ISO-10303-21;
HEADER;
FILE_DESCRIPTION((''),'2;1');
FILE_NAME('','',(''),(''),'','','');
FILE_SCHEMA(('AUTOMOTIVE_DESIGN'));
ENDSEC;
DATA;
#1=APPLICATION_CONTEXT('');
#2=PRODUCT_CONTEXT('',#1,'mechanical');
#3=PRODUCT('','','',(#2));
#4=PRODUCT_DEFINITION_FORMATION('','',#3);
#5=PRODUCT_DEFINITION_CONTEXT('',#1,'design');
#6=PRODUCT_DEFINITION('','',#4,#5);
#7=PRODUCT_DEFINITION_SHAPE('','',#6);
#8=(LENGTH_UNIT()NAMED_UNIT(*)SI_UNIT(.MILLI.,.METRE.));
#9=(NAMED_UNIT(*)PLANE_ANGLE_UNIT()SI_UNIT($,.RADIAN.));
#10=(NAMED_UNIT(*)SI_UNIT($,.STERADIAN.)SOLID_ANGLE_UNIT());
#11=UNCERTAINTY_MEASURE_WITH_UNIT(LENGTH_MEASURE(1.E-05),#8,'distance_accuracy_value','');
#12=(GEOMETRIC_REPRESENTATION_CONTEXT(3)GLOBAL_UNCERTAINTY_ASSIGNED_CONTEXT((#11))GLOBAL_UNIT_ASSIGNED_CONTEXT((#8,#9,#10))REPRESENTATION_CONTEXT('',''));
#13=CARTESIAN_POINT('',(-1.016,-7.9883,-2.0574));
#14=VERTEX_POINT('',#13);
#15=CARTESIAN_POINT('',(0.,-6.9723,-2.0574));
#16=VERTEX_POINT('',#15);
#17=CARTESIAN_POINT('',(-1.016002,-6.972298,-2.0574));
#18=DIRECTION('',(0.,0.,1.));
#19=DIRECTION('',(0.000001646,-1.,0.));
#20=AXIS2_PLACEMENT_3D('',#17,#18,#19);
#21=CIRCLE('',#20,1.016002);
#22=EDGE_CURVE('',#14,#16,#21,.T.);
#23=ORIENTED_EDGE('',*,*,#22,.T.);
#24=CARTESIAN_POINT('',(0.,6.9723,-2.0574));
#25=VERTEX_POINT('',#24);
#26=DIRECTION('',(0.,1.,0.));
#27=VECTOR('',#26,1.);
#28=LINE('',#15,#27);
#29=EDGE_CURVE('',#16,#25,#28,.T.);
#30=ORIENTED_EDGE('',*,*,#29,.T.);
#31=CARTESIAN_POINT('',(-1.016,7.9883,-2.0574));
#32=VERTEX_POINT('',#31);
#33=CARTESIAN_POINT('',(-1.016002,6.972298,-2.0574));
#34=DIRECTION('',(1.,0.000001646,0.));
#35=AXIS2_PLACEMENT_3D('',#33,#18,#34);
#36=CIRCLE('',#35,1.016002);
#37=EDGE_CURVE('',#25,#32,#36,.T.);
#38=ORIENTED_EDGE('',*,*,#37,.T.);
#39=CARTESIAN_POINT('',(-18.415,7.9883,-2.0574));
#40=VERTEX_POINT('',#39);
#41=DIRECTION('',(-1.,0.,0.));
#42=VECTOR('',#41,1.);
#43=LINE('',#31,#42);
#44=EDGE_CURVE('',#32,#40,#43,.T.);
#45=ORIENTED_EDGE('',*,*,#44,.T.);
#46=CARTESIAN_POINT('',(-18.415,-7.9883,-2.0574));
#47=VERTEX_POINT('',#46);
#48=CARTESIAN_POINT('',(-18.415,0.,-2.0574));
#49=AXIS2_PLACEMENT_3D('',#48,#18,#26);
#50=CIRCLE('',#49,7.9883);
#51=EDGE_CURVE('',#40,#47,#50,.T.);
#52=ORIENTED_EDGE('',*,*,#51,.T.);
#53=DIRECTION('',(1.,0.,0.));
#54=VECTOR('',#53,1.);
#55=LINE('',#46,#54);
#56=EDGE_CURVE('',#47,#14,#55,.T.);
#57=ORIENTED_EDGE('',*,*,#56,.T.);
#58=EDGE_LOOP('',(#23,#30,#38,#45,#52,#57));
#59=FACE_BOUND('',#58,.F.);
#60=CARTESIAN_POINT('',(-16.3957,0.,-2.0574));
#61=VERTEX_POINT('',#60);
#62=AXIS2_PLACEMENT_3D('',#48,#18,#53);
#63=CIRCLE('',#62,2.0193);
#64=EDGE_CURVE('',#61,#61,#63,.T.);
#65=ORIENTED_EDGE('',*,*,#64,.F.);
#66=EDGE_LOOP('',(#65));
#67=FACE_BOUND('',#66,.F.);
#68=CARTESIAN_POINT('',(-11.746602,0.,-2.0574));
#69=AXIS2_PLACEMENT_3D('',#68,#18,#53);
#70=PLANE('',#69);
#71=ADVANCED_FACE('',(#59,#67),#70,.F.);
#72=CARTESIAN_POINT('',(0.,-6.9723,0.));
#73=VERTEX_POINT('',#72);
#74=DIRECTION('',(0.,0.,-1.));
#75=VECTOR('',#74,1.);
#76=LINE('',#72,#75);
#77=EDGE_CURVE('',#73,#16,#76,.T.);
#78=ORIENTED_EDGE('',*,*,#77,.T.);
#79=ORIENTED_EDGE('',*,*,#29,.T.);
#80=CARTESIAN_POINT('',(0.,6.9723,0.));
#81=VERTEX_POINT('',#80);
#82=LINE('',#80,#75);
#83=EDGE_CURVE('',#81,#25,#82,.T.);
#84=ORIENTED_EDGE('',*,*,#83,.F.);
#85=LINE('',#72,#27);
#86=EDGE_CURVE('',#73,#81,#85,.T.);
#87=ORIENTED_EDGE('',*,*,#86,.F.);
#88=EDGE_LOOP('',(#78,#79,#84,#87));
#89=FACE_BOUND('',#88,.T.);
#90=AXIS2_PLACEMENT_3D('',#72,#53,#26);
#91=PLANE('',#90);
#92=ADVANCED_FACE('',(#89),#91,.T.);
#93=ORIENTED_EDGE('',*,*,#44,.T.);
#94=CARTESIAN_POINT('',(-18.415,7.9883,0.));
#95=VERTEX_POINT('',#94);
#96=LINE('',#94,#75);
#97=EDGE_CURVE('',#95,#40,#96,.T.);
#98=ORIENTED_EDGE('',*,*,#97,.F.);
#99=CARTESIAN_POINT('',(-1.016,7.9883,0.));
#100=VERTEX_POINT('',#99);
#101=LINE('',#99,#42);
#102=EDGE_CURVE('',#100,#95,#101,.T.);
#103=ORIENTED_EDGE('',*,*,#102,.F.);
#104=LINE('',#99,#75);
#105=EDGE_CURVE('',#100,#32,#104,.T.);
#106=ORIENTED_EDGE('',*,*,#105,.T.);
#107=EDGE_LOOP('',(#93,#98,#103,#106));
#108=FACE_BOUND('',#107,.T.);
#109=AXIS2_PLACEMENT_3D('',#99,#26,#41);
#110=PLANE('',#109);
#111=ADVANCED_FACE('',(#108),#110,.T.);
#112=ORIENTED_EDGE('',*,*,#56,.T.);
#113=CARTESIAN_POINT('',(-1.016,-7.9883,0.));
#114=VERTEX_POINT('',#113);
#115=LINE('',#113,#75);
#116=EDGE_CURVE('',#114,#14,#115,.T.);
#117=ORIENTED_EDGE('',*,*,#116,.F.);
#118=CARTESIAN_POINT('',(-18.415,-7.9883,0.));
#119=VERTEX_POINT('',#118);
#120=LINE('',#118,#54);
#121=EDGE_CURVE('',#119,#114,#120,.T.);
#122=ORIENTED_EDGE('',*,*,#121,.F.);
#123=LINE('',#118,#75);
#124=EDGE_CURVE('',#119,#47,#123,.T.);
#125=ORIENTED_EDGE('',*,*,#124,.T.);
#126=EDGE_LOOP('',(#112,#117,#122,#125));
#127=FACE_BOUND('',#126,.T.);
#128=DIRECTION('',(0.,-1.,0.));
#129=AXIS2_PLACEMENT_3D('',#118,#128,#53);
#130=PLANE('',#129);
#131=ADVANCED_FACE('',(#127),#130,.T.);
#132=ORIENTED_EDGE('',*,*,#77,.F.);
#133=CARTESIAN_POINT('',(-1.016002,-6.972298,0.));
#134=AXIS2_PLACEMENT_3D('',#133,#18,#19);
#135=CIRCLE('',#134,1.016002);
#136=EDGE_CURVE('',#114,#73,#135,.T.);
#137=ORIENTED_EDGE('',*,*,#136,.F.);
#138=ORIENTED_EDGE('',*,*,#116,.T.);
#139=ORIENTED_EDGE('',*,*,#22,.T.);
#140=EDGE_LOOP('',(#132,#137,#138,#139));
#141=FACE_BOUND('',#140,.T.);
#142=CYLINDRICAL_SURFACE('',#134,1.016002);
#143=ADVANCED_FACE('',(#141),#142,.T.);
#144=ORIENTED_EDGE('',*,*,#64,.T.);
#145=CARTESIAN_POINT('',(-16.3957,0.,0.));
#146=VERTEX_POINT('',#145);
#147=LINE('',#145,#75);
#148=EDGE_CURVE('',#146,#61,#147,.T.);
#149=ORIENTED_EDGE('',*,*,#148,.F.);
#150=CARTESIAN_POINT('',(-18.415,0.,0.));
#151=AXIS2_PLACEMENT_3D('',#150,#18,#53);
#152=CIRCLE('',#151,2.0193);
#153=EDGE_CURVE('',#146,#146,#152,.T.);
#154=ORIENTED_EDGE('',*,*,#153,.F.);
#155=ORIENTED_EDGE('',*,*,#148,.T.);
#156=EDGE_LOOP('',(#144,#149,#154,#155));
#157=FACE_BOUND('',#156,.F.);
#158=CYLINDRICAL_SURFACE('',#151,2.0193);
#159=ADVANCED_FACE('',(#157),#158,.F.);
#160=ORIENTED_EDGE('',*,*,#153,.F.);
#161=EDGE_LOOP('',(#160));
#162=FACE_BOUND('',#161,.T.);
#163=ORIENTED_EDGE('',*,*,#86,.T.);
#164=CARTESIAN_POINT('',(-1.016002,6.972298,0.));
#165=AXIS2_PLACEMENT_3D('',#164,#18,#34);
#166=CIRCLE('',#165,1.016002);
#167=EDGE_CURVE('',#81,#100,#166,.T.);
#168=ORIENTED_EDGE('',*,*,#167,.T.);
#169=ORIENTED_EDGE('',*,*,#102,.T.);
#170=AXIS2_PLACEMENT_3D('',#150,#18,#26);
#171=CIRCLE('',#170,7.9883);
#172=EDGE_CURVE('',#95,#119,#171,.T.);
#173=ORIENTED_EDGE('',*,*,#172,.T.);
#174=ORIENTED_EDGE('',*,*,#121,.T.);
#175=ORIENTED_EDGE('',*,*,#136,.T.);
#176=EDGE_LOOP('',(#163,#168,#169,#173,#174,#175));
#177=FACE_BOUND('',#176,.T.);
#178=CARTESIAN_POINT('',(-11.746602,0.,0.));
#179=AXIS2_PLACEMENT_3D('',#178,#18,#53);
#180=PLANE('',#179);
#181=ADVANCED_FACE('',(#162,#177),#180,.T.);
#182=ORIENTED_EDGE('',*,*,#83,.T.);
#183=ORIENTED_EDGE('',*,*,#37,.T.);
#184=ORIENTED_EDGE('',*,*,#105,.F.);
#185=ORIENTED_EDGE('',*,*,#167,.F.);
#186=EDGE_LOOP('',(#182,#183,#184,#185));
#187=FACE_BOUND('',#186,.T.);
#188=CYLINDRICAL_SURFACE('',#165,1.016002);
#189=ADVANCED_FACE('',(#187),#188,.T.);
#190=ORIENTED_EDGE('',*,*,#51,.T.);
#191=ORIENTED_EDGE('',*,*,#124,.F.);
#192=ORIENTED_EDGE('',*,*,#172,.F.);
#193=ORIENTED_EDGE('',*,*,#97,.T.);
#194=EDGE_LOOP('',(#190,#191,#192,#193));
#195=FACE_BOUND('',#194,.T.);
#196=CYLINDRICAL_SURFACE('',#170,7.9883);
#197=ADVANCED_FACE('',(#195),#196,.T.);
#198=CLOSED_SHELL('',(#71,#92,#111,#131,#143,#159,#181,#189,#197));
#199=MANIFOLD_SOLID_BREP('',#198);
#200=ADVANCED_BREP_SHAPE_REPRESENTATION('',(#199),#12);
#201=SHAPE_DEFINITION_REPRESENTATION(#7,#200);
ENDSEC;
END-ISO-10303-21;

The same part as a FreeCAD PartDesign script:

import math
import FreeCAD as App
import Part
import Sketcher
Q = App.Units.Quantity

doc = App.newDocument("Part")
body = doc.addObject("PartDesign::Body", "Body")

sketch1 = body.newObject("Sketcher::SketchObject", "Sketch")
sketch1.AttachmentSupport = (doc.getObject("XY_Plane"), [""])
sketch1.MapMode = "FlatFace"
sketch1.addGeometry([
    Part.ArcOfCircle(Part.Circle(App.Vector(-1.016002, 6.972298, 0), App.Vector(0, 0, 1), 1.016002), math.radians(0.000094), math.radians(89.999906)),
    Part.LineSegment(App.Vector(-1.016, 7.9883, 0), App.Vector(-18.415, 7.9883, 0)),
    Part.ArcOfCircle(Part.Circle(App.Vector(-18.415, 0, 0), App.Vector(0, 0, 1), 7.9883), math.radians(90), math.radians(270)),
    Part.LineSegment(App.Vector(-18.415, -7.9883, 0), App.Vector(-1.016, -7.9883, 0)),
    Part.ArcOfCircle(Part.Circle(App.Vector(-1.016002, -6.972298, 0), App.Vector(0, 0, 1), 1.016002), math.radians(-89.999906), math.radians(-0.000094)),
    Part.LineSegment(App.Vector(0, -6.9723, 0), App.Vector(0, 6.9723, 0)),
    Part.Circle(App.Vector(-18.415, 0, 0), App.Vector(0, 0, 1), 2.0193),
], False)
sketch1.addConstraint([
    Sketcher.Constraint("Tangent", 0, 2, 1, 1),
    Sketcher.Constraint("Tangent", 1, 2, 2, 1),
    Sketcher.Constraint("Tangent", 2, 2, 3, 1),
    Sketcher.Constraint("Tangent", 3, 2, 4, 1),
    Sketcher.Constraint("Tangent", 4, 2, 5, 1),
    Sketcher.Constraint("Tangent", 5, 2, 0, 1),
    Sketcher.Constraint("Horizontal", 1),
    Sketcher.Constraint("Horizontal", 3),
    Sketcher.Constraint("Vertical", 5),
    Sketcher.Constraint("Coincident", 6, 3, 2, 3),
    Sketcher.Constraint("Equal", 0, 4),
    Sketcher.Constraint("Symmetric", 4, 2, 5, 2, -1, 1),
    Sketcher.Constraint("Radius", 0, Q("0.0400001 in")),
    Sketcher.Constraint("Diameter", 6, Q("0.159 in")),
    Sketcher.Constraint("Radius", 2, Q("0.3145 in")),
    Sketcher.Constraint("DistanceX", 1, 2, 1, 1, Q("0.685 in")),
])
pad1 = body.newObject("PartDesign::Pad", "Pad")
pad1.Profile = sketch1
pad1.Length = Q("0.081 in")
pad1.Reversed = True

doc.recompute()
